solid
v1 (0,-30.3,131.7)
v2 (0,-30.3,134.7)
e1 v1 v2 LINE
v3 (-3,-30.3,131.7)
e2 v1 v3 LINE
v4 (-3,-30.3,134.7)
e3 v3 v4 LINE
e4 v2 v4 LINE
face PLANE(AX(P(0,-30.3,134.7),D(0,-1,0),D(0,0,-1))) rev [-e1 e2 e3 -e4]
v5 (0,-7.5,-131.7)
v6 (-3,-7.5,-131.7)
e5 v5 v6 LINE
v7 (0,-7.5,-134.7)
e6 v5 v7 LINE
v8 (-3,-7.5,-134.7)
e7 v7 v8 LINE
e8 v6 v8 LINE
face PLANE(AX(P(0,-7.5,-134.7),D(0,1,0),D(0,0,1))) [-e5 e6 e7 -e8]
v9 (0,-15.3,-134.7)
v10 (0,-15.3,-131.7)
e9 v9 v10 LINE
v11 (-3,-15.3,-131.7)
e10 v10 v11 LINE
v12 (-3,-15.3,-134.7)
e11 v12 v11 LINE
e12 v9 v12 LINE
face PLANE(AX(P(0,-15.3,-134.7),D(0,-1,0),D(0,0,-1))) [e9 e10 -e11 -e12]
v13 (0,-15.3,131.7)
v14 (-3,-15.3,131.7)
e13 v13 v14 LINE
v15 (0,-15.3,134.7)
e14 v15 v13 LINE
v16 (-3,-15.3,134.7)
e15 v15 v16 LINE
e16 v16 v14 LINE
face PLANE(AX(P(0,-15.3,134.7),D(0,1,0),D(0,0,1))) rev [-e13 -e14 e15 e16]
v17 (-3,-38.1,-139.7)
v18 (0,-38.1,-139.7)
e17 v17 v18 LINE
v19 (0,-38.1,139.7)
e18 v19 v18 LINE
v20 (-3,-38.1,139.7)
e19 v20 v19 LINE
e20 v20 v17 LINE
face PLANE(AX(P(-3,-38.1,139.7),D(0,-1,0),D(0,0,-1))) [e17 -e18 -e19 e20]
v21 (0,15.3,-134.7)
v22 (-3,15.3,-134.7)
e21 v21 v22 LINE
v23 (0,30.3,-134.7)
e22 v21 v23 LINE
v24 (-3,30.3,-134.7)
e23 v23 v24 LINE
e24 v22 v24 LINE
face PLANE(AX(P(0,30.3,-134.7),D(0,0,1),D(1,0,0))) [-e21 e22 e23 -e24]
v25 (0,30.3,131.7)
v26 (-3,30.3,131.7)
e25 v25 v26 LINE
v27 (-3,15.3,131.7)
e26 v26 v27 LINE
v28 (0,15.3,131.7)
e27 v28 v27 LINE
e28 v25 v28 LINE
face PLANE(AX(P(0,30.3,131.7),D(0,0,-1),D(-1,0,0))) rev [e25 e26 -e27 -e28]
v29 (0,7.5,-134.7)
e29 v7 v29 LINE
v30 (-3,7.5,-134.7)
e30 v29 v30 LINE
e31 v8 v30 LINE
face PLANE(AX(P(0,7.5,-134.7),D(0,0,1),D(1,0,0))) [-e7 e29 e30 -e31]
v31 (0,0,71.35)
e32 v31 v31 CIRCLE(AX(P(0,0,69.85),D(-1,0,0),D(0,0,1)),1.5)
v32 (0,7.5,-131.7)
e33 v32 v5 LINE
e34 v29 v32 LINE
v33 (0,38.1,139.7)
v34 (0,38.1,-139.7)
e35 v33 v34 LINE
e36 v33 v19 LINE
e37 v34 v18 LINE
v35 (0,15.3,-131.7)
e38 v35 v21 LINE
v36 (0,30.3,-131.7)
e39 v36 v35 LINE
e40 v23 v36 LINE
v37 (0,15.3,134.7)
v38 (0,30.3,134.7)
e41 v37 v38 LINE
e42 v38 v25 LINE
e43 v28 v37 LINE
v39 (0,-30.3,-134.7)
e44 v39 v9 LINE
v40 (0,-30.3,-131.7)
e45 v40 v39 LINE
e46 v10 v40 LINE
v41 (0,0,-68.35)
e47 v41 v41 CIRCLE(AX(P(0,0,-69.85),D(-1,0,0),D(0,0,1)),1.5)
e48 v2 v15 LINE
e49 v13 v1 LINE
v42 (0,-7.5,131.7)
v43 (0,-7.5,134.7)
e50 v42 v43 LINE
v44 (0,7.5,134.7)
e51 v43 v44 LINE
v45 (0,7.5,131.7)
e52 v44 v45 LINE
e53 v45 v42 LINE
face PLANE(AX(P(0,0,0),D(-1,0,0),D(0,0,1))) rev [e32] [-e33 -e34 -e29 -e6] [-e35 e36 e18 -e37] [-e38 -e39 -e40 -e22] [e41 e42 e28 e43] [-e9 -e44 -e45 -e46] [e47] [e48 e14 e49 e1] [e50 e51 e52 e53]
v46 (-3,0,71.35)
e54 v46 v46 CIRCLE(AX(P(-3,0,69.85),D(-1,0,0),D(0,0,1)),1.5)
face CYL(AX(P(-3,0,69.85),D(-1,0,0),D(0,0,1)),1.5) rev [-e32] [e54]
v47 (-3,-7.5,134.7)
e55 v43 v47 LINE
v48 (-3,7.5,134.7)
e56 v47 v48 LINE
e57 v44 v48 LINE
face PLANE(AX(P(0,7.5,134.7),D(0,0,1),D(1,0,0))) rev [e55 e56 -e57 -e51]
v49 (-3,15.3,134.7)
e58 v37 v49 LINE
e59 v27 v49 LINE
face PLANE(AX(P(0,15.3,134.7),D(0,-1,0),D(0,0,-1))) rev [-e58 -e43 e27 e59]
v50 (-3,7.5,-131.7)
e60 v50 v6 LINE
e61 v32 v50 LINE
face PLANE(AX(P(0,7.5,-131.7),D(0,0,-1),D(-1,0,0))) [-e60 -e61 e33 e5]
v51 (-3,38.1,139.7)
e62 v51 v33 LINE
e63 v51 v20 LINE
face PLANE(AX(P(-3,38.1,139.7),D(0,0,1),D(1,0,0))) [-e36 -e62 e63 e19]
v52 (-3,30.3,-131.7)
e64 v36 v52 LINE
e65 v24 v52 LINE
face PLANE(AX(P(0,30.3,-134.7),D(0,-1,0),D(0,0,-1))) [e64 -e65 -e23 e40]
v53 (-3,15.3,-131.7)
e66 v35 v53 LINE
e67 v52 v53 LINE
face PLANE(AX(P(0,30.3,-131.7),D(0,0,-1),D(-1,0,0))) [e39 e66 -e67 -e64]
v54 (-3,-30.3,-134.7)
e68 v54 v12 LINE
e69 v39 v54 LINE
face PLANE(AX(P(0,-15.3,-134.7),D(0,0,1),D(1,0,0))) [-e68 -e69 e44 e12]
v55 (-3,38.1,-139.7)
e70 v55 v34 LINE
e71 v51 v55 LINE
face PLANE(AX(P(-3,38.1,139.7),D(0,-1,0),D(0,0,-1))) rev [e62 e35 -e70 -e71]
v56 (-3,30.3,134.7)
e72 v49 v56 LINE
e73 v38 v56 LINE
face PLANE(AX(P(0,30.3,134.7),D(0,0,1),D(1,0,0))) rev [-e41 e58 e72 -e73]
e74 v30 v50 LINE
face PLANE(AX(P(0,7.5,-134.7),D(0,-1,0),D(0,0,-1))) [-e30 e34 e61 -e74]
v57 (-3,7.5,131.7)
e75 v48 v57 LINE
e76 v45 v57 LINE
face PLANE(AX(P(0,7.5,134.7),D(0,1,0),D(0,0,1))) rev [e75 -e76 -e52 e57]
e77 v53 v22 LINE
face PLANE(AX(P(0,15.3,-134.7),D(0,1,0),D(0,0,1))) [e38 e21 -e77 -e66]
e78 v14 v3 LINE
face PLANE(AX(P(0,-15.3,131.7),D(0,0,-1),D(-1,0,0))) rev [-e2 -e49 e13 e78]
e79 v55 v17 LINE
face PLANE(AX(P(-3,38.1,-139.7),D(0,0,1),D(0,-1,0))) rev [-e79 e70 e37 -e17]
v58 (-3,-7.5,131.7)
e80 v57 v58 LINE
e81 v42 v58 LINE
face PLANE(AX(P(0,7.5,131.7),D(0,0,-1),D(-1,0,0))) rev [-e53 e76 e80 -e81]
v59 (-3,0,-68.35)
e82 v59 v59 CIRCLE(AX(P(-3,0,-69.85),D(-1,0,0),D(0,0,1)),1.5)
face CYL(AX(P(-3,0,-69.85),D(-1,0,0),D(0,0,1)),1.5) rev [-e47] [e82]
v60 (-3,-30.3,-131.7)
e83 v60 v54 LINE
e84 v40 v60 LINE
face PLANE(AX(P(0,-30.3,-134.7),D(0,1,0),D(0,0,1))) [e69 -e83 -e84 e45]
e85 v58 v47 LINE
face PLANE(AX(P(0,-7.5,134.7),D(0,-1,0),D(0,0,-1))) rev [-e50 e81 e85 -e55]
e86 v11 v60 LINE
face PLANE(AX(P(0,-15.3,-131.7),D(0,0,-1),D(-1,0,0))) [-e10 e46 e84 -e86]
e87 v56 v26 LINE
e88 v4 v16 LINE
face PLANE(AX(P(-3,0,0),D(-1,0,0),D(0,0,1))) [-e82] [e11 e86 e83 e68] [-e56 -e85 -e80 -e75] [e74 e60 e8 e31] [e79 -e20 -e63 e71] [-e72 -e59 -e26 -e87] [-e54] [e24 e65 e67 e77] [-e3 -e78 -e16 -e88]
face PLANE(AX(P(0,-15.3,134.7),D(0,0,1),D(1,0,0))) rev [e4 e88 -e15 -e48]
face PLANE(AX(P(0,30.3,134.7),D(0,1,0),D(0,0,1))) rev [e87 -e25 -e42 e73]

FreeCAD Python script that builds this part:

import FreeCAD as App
import Part
import Sketcher
from FreeCAD import Vector
Q = App.Units.Quantity


def add_polygon(sketch, points):
    """Adds a closed chain of lines whose ends are joined by coincident constraints."""
    first, n = sketch.GeometryCount, len(points)
    for a, b in zip(points, points[1:] + points[:1]):
        sketch.addGeometry(Part.LineSegment(App.Vector(*a, 0), App.Vector(*b, 0)), False)
    for i in range(n):
        sketch.addConstraint(Sketcher.Constraint("Coincident", first + i, 2, first + (i + 1) % n, 1))

doc = App.newDocument("Part")
body = doc.addObject("PartDesign::Body", "Body")

# Sketch on YZ plane
sketch1 = body.newObject("Sketcher::SketchObject", "Sketch")
sketch1.AttachmentSupport = (doc.getObject("YZ_Plane"), [""])
sketch1.MapMode = "FlatFace"
add_polygon(sketch1, [(38.1, 139.7), (-38.1, 139.7), (-38.1, -139.7), (38.1, -139.7)])  # lines 0-3
sketch1.addConstraint([
    Sketcher.Constraint("Horizontal", 0),
    Sketcher.Constraint("Vertical", 1),
    Sketcher.Constraint("Horizontal", 2),
    Sketcher.Constraint("Vertical", 3),
    Sketcher.Constraint("Symmetric", 0, 2, 2, 2, -1, 1),
    Sketcher.Constraint("DistanceX", 0, 2, 0, 1, Q("76.2 mm")),
    Sketcher.Constraint("DistanceY", 1, 2, 1, 1, Q("279.4 mm")),
])
pad1 = body.newObject("PartDesign::Pad", "Pad")
pad1.Profile = sketch1
pad1.Length = 3
pad1.Reversed = True

# Sketch on YZ plane
sketch2 = body.newObject("Sketcher::SketchObject", "Sketch001")
sketch2.AttachmentSupport = (doc.getObject("YZ_Plane"), [""])
sketch2.MapMode = "FlatFace"
sketch2.AttachmentOffset = App.Placement(Vector(0, 0, -3), App.Rotation())
add_polygon(sketch2, [(30.3, 131.7), (15.3, 131.7), (15.3, 134.7), (30.3, 134.7)])  # lines 0-3
sketch2.addConstraint([
    Sketcher.Constraint("Horizontal", 0),
    Sketcher.Constraint("Vertical", 1),
    Sketcher.Constraint("Horizontal", 2),
    Sketcher.Constraint("Vertical", 3),
    Sketcher.Constraint("DistanceX", 0, 2, 0, 1, Q("15 mm")),
    Sketcher.Constraint("DistanceY", 1, 1, 1, 2, Q("3 mm")),
    Sketcher.Constraint("DistanceX", -1, 1, 0, 2, Q("15.3 mm")),
    Sketcher.Constraint("DistanceY", -1, 1, 0, 2, Q("131.7 mm")),
])
pocket1 = body.newObject("PartDesign::Pocket", "Pocket")
pocket1.Profile = sketch2
pocket1.Type = "ThroughAll"
pocket1.Reversed = True
doc.recompute()

linearpattern = body.newObject("PartDesign::LinearPattern", "LinearPattern")
linearpattern.Originals = [pocket1]
linearpattern.Direction = (doc.getObject("Y_Axis"), [""])
linearpattern.Mode = "offset"
linearpattern.Offset = 22.8
linearpattern.Occurrences = 3
linearpattern.Reversed = True
body.Tip = linearpattern
doc.recompute()

mirrored = body.newObject("PartDesign::Mirrored", "Mirrored")
mirrored.Originals = [pocket1]
mirrored.MirrorPlane = (doc.getObject("XY_Plane"), [""])
body.Tip = mirrored

# Sketch on YZ plane
sketch3 = body.newObject("Sketcher::SketchObject", "Sketch002")
sketch3.AttachmentSupport = (doc.getObject("YZ_Plane"), [""])
sketch3.MapMode = "FlatFace"
sketch3.AttachmentOffset = App.Placement(Vector(0, 0, -3), App.Rotation())
add_polygon(sketch3, [(-7.5, -131.7), (7.5, -131.7), (7.5, -134.7), (-7.5, -134.7)])  # lines 0-3
sketch3.addConstraint([
    Sketcher.Constraint("Horizontal", 0),
    Sketcher.Constraint("Vertical", 1),
    Sketcher.Constraint("Horizontal", 2),
    Sketcher.Constraint("Vertical", 3),
    Sketcher.Constraint("DistanceX", 0, 1, 0, 2, Q("15 mm")),
    Sketcher.Constraint("DistanceY", 1, 2, 1, 1, Q("3 mm")),
    Sketcher.Constraint("DistanceX", -1, 1, 0, 2, Q("7.5 mm")),
    Sketcher.Constraint("DistanceY", 0, 2, -1, 1, Q("131.7 mm")),
])
pocket2 = body.newObject("PartDesign::Pocket", "Pocket001")
pocket2.Profile = sketch3
pocket2.Type = "ThroughAll"
pocket2.Reversed = True

# Sketch on YZ plane
sketch4 = body.newObject("Sketcher::SketchObject", "Sketch003")
sketch4.AttachmentSupport = (doc.getObject("YZ_Plane"), [""])
sketch4.MapMode = "FlatFace"
sketch4.AttachmentOffset = App.Placement(Vector(0, 0, -3), App.Rotation())
add_polygon(sketch4, [(-30.3, -131.7), (-15.3, -131.7), (-15.3, -134.7), (-30.3, -134.7)])  # lines 0-3
sketch4.addConstraint([
    Sketcher.Constraint("Horizontal", 0),
    Sketcher.Constraint("Vertical", 1),
    Sketcher.Constraint("Horizontal", 2),
    Sketcher.Constraint("Vertical", 3),
    Sketcher.Constraint("DistanceX", 0, 1, 0, 2, Q("15 mm")),
    Sketcher.Constraint("DistanceY", 1, 2, 1, 1, Q("3 mm")),
    Sketcher.Constraint("DistanceX", 0, 2, -1, 1, Q("15.3 mm")),
    Sketcher.Constraint("DistanceY", 0, 2, -1, 1, Q("131.7 mm")),
])
pocket3 = body.newObject("PartDesign::Pocket", "Pocket002")
pocket3.Profile = sketch4
pocket3.Type = "ThroughAll"
pocket3.Reversed = True

# Sketch on YZ plane
sketch5 = body.newObject("Sketcher::SketchObject", "Sketch004")
sketch5.AttachmentSupport = (doc.getObject("YZ_Plane"), [""])
sketch5.MapMode = "FlatFace"
sketch5.AttachmentOffset = App.Placement(Vector(0, 0, -3), App.Rotation())
sketch5.addGeometry([
    Part.Circle(Vector(0, -69.85, 0), Vector(0, 0, 1), 1.5),
    Part.Circle(Vector(0, 69.85, 0), Vector(0, 0, 1), 1.5),
], False)
sketch5.addConstraint([
    Sketcher.Constraint("Equal", 0, 1),
    Sketcher.Constraint("Symmetric", 0, 3, 1, 3, -1, 1),
    Sketcher.Constraint("PointOnObject", 0, 3, -2),
    Sketcher.Constraint("Diameter", 0, Q("3 mm")),
    Sketcher.Constraint("DistanceY", 0, 3, 1, 3, Q("139.7 mm")),
])
doc.recompute()
hole = body.newObject("PartDesign::Hole", "Hole")
hole.Profile = sketch5
hole.ThreadType = "None"
hole.Diameter = 3
hole.DepthType = "ThroughAll"
hole.Reversed = True

doc.recompute()
